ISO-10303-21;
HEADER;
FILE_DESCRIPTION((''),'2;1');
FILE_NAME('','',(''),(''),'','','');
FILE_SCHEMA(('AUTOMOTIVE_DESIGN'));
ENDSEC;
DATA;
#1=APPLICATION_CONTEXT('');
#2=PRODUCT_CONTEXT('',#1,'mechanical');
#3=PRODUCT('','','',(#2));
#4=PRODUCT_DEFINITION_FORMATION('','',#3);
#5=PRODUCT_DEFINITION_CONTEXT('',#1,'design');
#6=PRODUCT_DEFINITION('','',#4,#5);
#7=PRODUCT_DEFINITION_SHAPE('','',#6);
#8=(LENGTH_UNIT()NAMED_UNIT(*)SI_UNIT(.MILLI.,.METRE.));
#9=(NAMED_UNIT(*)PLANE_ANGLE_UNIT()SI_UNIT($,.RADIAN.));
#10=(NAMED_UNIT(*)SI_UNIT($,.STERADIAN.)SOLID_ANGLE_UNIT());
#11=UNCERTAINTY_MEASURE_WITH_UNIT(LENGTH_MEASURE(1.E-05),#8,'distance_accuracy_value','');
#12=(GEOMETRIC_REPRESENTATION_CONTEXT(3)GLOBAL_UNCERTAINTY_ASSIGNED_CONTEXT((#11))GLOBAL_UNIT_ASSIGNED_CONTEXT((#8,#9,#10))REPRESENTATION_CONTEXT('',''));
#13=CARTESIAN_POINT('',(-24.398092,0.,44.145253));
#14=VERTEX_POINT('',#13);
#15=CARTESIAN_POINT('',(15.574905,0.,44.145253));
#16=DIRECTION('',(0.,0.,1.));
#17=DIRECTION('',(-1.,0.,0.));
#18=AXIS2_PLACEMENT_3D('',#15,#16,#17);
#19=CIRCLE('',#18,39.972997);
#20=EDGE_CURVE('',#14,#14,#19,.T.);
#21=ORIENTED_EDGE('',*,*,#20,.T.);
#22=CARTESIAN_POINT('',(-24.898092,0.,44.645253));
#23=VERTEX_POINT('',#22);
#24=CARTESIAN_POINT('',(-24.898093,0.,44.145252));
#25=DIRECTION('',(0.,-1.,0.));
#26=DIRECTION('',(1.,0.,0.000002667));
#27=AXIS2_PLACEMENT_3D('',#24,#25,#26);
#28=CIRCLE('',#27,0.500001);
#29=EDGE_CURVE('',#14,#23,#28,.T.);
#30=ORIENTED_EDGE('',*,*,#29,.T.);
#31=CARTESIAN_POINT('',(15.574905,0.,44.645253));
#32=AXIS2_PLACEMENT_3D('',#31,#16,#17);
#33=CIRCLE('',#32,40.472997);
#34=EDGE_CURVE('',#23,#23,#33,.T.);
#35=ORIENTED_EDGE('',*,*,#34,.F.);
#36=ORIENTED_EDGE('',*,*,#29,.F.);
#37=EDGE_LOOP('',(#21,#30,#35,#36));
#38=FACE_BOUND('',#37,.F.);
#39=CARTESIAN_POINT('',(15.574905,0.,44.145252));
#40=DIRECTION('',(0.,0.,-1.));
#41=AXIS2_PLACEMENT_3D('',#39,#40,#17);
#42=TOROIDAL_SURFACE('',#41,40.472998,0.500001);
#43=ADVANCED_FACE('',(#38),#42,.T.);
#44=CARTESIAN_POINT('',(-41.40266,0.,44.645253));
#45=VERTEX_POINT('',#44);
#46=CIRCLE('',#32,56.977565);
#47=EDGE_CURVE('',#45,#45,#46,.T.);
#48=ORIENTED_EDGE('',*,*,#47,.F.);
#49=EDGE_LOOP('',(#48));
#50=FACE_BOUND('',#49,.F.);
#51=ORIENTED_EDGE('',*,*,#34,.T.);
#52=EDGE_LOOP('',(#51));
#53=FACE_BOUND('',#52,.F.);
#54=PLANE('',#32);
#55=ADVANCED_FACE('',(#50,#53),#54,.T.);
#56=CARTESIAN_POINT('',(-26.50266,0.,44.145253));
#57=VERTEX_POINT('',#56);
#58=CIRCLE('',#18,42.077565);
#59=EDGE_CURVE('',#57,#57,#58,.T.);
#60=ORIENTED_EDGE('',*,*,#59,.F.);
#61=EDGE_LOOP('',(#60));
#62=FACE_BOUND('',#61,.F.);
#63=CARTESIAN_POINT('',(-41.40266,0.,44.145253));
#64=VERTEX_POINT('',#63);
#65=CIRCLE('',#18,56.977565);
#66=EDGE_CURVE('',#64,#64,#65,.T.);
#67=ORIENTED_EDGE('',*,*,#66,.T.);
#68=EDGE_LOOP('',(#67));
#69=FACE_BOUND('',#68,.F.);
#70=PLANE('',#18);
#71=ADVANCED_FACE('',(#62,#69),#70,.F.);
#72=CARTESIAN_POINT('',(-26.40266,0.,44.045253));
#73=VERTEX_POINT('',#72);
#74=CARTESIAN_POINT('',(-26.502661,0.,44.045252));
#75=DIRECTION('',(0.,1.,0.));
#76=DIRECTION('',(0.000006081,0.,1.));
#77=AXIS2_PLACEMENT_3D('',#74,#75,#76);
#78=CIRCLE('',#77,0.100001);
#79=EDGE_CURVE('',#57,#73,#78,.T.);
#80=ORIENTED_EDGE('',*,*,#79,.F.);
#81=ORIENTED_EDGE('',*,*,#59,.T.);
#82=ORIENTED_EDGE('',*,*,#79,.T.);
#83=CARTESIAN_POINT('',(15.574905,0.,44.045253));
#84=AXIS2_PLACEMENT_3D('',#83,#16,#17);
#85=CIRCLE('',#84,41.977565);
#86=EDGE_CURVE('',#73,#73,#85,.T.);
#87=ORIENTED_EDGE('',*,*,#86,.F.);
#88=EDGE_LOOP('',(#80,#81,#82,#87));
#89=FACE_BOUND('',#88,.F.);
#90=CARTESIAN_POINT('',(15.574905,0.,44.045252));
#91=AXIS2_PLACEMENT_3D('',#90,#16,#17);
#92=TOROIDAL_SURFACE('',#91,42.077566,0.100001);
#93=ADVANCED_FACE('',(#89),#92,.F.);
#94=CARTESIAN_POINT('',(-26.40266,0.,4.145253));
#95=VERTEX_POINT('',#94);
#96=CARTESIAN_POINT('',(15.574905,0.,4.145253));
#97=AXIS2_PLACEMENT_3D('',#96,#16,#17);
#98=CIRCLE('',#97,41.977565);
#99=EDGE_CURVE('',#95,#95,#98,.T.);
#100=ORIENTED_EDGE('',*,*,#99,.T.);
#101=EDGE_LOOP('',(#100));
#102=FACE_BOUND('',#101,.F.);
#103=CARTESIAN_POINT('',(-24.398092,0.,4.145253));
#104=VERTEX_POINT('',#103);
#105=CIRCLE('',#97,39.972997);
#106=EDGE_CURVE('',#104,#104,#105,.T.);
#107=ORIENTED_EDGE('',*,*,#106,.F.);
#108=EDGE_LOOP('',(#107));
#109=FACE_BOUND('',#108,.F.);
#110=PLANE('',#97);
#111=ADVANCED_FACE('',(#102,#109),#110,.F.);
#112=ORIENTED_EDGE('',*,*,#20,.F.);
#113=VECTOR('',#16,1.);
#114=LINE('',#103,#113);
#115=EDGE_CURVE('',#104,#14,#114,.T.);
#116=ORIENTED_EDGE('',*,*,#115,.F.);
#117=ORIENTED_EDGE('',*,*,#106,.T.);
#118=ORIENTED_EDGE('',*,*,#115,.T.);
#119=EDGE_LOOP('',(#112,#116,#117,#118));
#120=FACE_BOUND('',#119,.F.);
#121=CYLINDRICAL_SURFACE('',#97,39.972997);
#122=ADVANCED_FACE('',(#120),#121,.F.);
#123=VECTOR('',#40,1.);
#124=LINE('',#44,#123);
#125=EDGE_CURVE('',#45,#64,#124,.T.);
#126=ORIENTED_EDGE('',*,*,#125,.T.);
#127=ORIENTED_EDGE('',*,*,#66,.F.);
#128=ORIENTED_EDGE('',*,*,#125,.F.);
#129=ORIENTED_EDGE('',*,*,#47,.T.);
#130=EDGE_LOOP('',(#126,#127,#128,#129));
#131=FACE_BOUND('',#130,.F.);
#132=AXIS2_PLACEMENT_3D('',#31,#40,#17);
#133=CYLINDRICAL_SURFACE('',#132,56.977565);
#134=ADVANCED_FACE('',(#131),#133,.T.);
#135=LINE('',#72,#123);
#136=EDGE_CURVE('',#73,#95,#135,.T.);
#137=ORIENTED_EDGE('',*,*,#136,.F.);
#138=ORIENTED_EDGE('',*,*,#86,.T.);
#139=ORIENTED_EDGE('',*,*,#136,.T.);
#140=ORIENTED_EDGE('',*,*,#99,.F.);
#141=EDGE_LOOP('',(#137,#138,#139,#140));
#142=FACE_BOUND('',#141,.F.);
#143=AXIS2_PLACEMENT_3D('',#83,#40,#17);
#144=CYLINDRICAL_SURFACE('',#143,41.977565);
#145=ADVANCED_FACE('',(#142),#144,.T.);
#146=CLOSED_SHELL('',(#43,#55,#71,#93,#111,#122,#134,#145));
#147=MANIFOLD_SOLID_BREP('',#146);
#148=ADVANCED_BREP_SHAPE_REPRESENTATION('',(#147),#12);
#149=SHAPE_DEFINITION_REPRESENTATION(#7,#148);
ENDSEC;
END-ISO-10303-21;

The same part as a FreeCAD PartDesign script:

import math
import FreeCAD as App
import Part
import Sketcher
from FreeCAD import Vector
Q = App.Units.Quantity

doc = App.newDocument("Part")
body = doc.addObject("PartDesign::Body", "Body")

# Sketch on XZ plane
sketch1 = body.newObject("Sketcher::SketchObject", "Sketch")
sketch1.AttachmentSupport = (doc.getObject("XZ_Plane"), [""])
sketch1.MapMode = "FlatFace"
sketch1.addGeometry(Part.LineSegment(Vector(-24.9, 44.65, 0), Vector(-41.4, 44.65, 0)), False)
sketch1.addGeometry(Part.LineSegment(Vector(-41.4, 44.65, 0), Vector(-41.4, 44.15, 0)), False)
sketch1.addGeometry(Part.LineSegment(Vector(-41.4, 44.15, 0), Vector(-26.5, 44.15, 0)), False)
sketch1.addGeometry(Part.ArcOfCircle(Part.Circle(Vector(-26.5, 44.05, 0), Vector(0, 0, 1), 0.1), math.radians(0), math.radians(90)), False)
sketch1.addGeometry(Part.LineSegment(Vector(-26.4, 44.05, 0), Vector(-26.4, 4.15, 0)), False)
sketch1.addGeometry(Part.LineSegment(Vector(-26.4, 4.15, 0), Vector(-24.4, 4.15, 0)), False)
sketch1.addGeometry(Part.LineSegment(Vector(-24.4, 4.15, 0), Vector(-24.4, 44.15, 0)), False)
sketch1.addGeometry(Part.ArcOfCircle(Part.Circle(Vector(-24.9, 44.15, 0), Vector(0, 0, 1), 0.5), math.radians(0), math.radians(90)), False)
sketch1.addGeometry(Part.LineSegment(Vector(15.57, 4.15, 0), Vector(15.57, 44.65, 0)), True)  # axis
sketch1.addConstraint(Sketcher.Constraint("Coincident", 0, 2, 1, 1))
sketch1.addConstraint(Sketcher.Constraint("Coincident", 1, 2, 2, 1))
sketch1.addConstraint(Sketcher.Constraint("Coincident", 2, 2, 3, 2))
sketch1.addConstraint(Sketcher.Constraint("Coincident", 3, 1, 4, 1))
sketch1.addConstraint(Sketcher.Constraint("Coincident", 4, 2, 5, 1))
sketch1.addConstraint(Sketcher.Constraint("Coincident", 5, 2, 6, 1))
sketch1.addConstraint(Sketcher.Constraint("Coincident", 6, 2, 7, 1))
sketch1.addConstraint(Sketcher.Constraint("Coincident", 7, 2, 0, 1))
sketch1.addConstraint(Sketcher.Constraint("Horizontal", 0))
sketch1.addConstraint(Sketcher.Constraint("Vertical", 1))
sketch1.addConstraint(Sketcher.Constraint("Horizontal", 2))
sketch1.addConstraint(Sketcher.Constraint("Vertical", 4))
sketch1.addConstraint(Sketcher.Constraint("Horizontal", 5))
sketch1.addConstraint(Sketcher.Constraint("Vertical", 6))
sketch1.addConstraint(Sketcher.Constraint("Vertical", 8))
sketch1.addConstraint(Sketcher.Constraint("Horizontal", 7, 3, 1, 2))
sketch1.addConstraint(Sketcher.Constraint("Horizontal", 2, 2, 6, 2))
sketch1.addConstraint(Sketcher.Constraint("Horizontal", 5, 2, 8, 1))
sketch1.addConstraint(Sketcher.Constraint("Horizontal", 7, 2, 8, 2))
sketch1.addConstraint(Sketcher.Constraint("Vertical", 3, 3, 2, 2))
sketch1.addConstraint(Sketcher.Constraint("Radius", 3, Q("0.100001 mm")))
sketch1.addConstraint(Sketcher.Constraint("Radius", 7, Q("0.500001 mm")))
sketch1.addConstraint(Sketcher.Constraint("DistanceY", 6, 1, 6, 2, Q("40 mm")))
sketch1.addConstraint(Sketcher.Constraint("DistanceX", 2, 1, 2, 2, Q("14.9 mm")))
sketch1.addConstraint(Sketcher.Constraint("DistanceY", 4, 2, 4, 1, Q("39.9 mm")))
sketch1.addConstraint(Sketcher.Constraint("DistanceX", 7, 2, 6, 2, Q("0.5 mm")))
sketch1.addConstraint(Sketcher.Constraint("DistanceX", 7, 3, 8, 1, Q("40.472998 mm")))
sketch1.addConstraint(Sketcher.Constraint("DistanceX", 5, 1, 5, 2, Q("2.004568 mm")))
sketch1.addConstraint(Sketcher.Constraint("DistanceX", 3, 3, -1, 1, Q("26.502661 mm")))
sketch1.addConstraint(Sketcher.Constraint("DistanceY", -1, 1, 7, 3, Q("44.145252 mm")))
revolution = body.newObject("PartDesign::Revolution", "Revolution")
revolution.Profile = sketch1
revolution.ReferenceAxis = (sketch1, ["Axis0"])
revolution.Angle = 360

doc.recompute()
